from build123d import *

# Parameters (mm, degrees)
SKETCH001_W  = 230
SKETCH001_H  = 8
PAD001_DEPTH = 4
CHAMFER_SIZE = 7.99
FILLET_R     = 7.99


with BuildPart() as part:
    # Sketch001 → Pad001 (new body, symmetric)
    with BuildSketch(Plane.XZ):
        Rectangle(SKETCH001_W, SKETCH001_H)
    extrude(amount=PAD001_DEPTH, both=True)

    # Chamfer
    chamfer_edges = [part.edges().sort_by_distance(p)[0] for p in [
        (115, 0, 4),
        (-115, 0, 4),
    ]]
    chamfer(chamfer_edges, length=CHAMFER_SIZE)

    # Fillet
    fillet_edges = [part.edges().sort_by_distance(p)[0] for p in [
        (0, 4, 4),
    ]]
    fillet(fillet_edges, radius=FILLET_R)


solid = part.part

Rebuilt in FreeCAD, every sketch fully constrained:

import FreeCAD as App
import Part
import Sketcher
Q = App.Units.Quantity


def edges_at(feature, points):
    """Names of the edges that pass closest to the given points."""
    edges = feature.Shape.Edges
    near = lambda p: min(range(len(edges)), key=lambda i: edges[i].distToShape(Part.Vertex(*p))[0])
    return sorted({f"Edge{near(p) + 1}" for p in points})


def add_polygon(sketch, points):
    """Adds a closed chain of lines whose ends are joined by coincident constraints."""
    first, n = sketch.GeometryCount, len(points)
    for a, b in zip(points, points[1:] + points[:1]):
        sketch.addGeometry(Part.LineSegment(App.Vector(*a, 0), App.Vector(*b, 0)), False)
    for i in range(n):
        sketch.addConstraint(Sketcher.Constraint("Coincident", first + i, 2, first + (i + 1) % n, 1))

doc = App.newDocument("Part")
body = doc.addObject("PartDesign::Body", "Body")

# Sketch on XZ plane
sketch1 = body.newObject("Sketcher::SketchObject", "Sketch")
sketch1.AttachmentSupport = (doc.getObject("XZ_Plane"), [""])
sketch1.MapMode = "FlatFace"
add_polygon(sketch1, [(-115, 4), (-115, -4), (115, -4), (115, 4)])  # lines 0-3
sketch1.addConstraint(Sketcher.Constraint("Vertical", 0))
sketch1.addConstraint(Sketcher.Constraint("Horizontal", 1))
sketch1.addConstraint(Sketcher.Constraint("Vertical", 2))
sketch1.addConstraint(Sketcher.Constraint("Horizontal", 3))
sketch1.addConstraint(Sketcher.Constraint("Symmetric", 0, 2, 2, 2, -1, 1))
sketch1.addConstraint(Sketcher.Constraint("DistanceX", 1, 1, 1, 2, Q("230 mm")))
sketch1.addConstraint(Sketcher.Constraint("DistanceY", 0, 2, 0, 1, Q("8 mm")))
pad1 = body.newObject("PartDesign::Pad", "Pad")
pad1.Profile = sketch1
pad1.Length = 8
pad1.Midplane = True
doc.recompute()

chamfer = body.newObject("PartDesign::Chamfer", "Chamfer")
chamfer.Base = (pad1, edges_at(pad1, [(115, 0, 4), (-115, 0, 4)]))
chamfer.Size = 7.99
doc.recompute()

fillet = body.newObject("PartDesign::Fillet", "Fillet")
fillet.Base = (chamfer, edges_at(chamfer, [(0, 4, 4)]))
fillet.Radius = 7.99

doc.recompute()
